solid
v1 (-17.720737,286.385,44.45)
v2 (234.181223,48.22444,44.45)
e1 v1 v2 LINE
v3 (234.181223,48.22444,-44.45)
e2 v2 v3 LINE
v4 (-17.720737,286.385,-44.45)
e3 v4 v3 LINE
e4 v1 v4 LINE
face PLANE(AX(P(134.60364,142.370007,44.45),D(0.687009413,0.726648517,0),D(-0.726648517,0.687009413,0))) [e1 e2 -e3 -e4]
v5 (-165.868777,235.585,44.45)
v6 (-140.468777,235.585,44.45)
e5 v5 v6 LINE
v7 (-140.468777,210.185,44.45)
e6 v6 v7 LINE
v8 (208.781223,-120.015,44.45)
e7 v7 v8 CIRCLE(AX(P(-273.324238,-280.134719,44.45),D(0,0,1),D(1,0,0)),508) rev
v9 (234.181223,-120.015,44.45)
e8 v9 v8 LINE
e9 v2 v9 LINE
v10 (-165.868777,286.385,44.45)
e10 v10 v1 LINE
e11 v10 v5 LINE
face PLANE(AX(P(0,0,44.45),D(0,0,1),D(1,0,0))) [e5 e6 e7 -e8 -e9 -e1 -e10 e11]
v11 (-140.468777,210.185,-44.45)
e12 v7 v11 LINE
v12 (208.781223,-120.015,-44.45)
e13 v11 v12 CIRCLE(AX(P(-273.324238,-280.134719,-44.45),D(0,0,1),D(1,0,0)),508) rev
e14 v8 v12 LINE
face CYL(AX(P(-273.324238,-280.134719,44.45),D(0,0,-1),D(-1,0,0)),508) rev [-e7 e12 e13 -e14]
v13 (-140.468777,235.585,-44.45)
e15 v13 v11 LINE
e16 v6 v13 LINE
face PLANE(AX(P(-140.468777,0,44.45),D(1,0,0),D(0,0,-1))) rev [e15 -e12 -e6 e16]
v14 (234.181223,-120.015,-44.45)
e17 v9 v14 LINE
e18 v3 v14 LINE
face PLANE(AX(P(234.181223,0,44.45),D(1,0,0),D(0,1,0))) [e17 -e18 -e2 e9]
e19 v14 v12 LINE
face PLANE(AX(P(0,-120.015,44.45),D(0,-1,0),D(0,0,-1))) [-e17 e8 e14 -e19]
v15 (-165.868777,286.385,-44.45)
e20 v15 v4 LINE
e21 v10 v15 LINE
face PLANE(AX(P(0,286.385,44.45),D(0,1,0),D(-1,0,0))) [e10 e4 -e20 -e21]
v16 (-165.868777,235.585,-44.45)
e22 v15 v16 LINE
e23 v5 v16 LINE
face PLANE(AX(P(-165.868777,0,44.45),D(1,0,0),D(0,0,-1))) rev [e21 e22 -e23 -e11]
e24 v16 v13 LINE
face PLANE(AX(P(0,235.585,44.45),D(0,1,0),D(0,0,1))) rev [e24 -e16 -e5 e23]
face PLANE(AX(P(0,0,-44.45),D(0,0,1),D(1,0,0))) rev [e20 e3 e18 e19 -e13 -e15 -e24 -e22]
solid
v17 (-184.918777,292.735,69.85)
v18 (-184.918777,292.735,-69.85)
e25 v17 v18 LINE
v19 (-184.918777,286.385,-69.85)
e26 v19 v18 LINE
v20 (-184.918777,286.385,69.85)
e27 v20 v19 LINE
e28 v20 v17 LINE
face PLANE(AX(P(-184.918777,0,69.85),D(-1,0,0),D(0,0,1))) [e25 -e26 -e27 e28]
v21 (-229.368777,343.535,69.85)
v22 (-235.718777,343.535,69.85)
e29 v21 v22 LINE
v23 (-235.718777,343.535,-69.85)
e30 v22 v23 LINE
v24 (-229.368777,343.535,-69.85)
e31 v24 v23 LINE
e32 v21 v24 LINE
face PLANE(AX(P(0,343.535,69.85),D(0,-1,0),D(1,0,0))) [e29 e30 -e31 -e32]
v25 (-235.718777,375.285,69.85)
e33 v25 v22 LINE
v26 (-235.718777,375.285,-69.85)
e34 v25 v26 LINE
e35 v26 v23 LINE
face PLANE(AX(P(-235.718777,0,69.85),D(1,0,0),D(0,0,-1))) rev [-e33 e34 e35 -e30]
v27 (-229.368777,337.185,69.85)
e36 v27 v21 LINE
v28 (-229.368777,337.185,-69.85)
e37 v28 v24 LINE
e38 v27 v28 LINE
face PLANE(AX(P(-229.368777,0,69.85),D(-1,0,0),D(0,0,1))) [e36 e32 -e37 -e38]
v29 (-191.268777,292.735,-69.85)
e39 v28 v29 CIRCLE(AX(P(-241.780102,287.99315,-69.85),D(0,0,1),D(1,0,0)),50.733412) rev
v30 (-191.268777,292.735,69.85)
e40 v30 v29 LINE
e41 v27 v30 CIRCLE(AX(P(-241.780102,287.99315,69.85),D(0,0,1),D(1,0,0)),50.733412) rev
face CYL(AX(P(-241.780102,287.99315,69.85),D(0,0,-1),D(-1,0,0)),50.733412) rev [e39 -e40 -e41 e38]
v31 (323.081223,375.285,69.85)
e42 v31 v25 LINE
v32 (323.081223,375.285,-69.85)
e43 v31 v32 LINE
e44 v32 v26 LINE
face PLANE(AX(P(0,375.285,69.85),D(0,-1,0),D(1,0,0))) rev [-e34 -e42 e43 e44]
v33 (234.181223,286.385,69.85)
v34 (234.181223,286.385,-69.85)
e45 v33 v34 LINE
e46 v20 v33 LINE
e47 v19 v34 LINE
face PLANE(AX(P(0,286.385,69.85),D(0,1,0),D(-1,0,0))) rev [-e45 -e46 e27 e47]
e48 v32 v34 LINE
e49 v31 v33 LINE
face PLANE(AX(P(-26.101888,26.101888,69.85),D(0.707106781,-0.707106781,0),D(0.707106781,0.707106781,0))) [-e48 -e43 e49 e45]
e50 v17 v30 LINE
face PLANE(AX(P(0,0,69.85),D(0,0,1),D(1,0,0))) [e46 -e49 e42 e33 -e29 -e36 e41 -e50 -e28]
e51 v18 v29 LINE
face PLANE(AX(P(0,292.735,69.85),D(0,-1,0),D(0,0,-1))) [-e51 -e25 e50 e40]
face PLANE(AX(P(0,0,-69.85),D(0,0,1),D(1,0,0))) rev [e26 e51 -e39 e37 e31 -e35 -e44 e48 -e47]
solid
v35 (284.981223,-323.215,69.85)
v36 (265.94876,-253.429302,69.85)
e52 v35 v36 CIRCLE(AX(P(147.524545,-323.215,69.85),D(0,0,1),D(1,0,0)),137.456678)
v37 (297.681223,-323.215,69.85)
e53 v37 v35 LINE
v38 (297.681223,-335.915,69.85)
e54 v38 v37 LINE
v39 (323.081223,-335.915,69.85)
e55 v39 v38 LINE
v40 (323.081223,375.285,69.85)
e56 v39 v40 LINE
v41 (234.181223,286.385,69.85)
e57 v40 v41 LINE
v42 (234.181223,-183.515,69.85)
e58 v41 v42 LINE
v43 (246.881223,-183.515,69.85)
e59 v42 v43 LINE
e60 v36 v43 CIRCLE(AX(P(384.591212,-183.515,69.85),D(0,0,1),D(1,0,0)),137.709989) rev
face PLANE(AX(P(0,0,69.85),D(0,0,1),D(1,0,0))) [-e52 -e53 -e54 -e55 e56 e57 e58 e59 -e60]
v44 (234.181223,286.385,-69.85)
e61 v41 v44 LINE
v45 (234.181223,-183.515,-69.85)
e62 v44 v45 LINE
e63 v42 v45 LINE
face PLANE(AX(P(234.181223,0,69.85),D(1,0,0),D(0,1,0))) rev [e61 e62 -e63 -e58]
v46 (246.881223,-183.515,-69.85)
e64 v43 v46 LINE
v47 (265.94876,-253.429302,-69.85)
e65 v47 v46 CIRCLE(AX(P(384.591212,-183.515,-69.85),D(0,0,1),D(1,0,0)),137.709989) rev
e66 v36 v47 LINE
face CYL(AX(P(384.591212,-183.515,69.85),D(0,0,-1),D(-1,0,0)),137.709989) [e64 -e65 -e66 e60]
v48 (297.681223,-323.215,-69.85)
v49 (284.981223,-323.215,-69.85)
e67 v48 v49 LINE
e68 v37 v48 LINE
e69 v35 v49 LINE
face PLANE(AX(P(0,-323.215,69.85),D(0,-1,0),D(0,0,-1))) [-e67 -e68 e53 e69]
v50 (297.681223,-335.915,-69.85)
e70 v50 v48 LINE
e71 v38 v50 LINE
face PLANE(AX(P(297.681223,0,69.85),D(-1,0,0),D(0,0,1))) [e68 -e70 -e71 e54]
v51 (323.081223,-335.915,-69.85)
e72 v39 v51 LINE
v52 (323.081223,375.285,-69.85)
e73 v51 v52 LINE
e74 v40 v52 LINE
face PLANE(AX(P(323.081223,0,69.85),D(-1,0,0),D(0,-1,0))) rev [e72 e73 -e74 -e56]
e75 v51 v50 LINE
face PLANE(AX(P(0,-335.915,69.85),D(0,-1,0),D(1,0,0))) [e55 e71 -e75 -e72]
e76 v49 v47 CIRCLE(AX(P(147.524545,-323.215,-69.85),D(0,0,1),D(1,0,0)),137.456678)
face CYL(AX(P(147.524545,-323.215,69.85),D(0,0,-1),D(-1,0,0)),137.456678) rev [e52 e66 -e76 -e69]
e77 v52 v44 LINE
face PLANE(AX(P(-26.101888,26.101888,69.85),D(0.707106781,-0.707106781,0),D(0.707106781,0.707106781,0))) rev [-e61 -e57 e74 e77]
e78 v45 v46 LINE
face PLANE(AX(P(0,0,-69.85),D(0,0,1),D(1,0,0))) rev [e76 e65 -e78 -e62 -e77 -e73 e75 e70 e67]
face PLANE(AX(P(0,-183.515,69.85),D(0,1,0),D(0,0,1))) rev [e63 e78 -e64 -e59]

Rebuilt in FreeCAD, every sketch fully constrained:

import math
import FreeCAD as App
import Part
import Sketcher

V = App.Vector
Q = App.Units.Quantity

doc = App.newDocument("Part")
body = doc.addObject("PartDesign::Body", "Body")

# Sketch on XY plane
sketch1 = body.newObject("Sketcher::SketchObject", "Sketch")
sketch1.AttachmentSupport = (doc.getObject("XY_Plane"), [""])
sketch1.MapMode = "FlatFace"
sketch1.addGeometry([
    Part.LineSegment(V(-229, 344, 0), V(-229, 337, 0)),  # 0
    Part.ArcOfCircle(Part.Circle(V(-242, 288, 0), V(0, 0, 1), 51), math.radians(5), math.radians(76)),  # 1
    Part.LineSegment(V(-191, 293, 0), V(-185, 293, 0)),  # 2
    Part.LineSegment(V(-185, 293, 0), V(-185, 286, 0)),  # 3
    Part.LineSegment(V(-185, 286, 0), V(234, 286, 0)),  # 4
    Part.LineSegment(V(234, 286, 0), V(323, 375, 0)),  # 5
    Part.LineSegment(V(323, 375, 0), V(-236, 375, 0)),  # 6
    Part.LineSegment(V(-236, 375, 0), V(-236, 344, 0)),  # 7
    Part.LineSegment(V(-236, 344, 0), V(-229, 344, 0)),  # 8
], False)
sketch1.addConstraint([
    Sketcher.Constraint("Coincident", 0, 2, 1, 2),
    Sketcher.Constraint("Coincident", 1, 1, 2, 1),
    Sketcher.Constraint("Coincident", 2, 2, 3, 1),
    Sketcher.Constraint("Coincident", 3, 2, 4, 1),
    Sketcher.Constraint("Coincident", 4, 2, 5, 1),
    Sketcher.Constraint("Coincident", 5, 2, 6, 1),
    Sketcher.Constraint("Coincident", 6, 2, 7, 1),
    Sketcher.Constraint("Coincident", 7, 2, 8, 1),
    Sketcher.Constraint("Coincident", 8, 2, 0, 1),
    Sketcher.Constraint("Vertical", 0),
    Sketcher.Constraint("Horizontal", 2),
    Sketcher.Constraint("Vertical", 3),
    Sketcher.Constraint("Horizontal", 4),
    Sketcher.Constraint("Horizontal", 6),
    Sketcher.Constraint("Vertical", 7),
    Sketcher.Constraint("Horizontal", 8),
    Sketcher.Constraint("Equal", 2, 8),
    Sketcher.Constraint("Equal", 8, 0),
    Sketcher.Constraint("Equal", 0, 3),
    Sketcher.Constraint("DistanceX", 6, 2, 6, 1, Q("22 in")),
    Sketcher.Constraint("DistanceX", 4, 1, 4, 2, Q("16.5 in")),
    Sketcher.Constraint("Angle", 5, Q("45 deg")),
    Sketcher.Constraint("DistanceY", 3, 2, 0, 2, Q("2 in")),
    Sketcher.Constraint("DistanceX", 2, 2, 5, 2, Q("20 in")),
    Sketcher.Constraint("DistanceX", 2, 1, 2, 2, Q("0.25 in")),
    Sketcher.Constraint("DistanceY", -1, 1, 0, 2, Q("13.275 in")),
    Sketcher.Constraint("Radius", 1, 50.733412),
    Sketcher.Constraint("DistanceX", 1, 3, -1, 1, 241.780102),
])
pad1 = body.newObject("PartDesign::Pad", "Pad")
pad1.Profile = sketch1
pad1.Length = Q("5.5 in")
pad1.Midplane = True
body2 = doc.addObject("PartDesign::Body", "Body001")

# Sketch on XY plane
sketch2 = body2.newObject("Sketcher::SketchObject", "Sketch001")
sketch2.AttachmentSupport = (doc.getObject("XY_Plane001"), [""])
sketch2.MapMode = "FlatFace"
sketch2.addGeometry([
    Part.LineSegment(V(234, 48, 0), V(-18, 286, 0)),  # 0
    Part.LineSegment(V(-18, 286, 0), V(-166, 286, 0)),  # 1
    Part.LineSegment(V(-166, 286, 0), V(-166, 236, 0)),  # 2
    Part.LineSegment(V(-166, 236, 0), V(-140, 236, 0)),  # 3
    Part.LineSegment(V(-140, 236, 0), V(-140, 210, 0)),  # 4
    Part.ArcOfCircle(Part.Circle(V(-273, -280, 0), V(0, 0, 1), 508), math.radians(18), math.radians(75)),  # 5
    Part.LineSegment(V(209, -120, 0), V(234, -120, 0)),  # 6
    Part.LineSegment(V(234, -120, 0), V(234, 48, 0)),  # 7
], False)
sketch2.addConstraint([
    Sketcher.Constraint("Coincident", 0, 2, 1, 1),
    Sketcher.Constraint("Coincident", 1, 2, 2, 1),
    Sketcher.Constraint("Coincident", 2, 2, 3, 1),
    Sketcher.Constraint("Coincident", 3, 2, 4, 1),
    Sketcher.Constraint("Coincident", 4, 2, 5, 2),
    Sketcher.Constraint("Coincident", 5, 1, 6, 1),
    Sketcher.Constraint("Coincident", 6, 2, 7, 1),
    Sketcher.Constraint("Coincident", 7, 2, 0, 1),
    Sketcher.Constraint("Horizontal", 1),
    Sketcher.Constraint("Vertical", 2),
    Sketcher.Constraint("Horizontal", 3),
    Sketcher.Constraint("Vertical", 4),
    Sketcher.Constraint("Horizontal", 6),
    Sketcher.Constraint("Vertical", 7),
    Sketcher.Constraint("Equal", 3, 6),
    Sketcher.Constraint("Equal", 6, 4),
    Sketcher.Constraint("Radius", 5, Q("20 in")),
    Sketcher.Constraint("DistanceX", 3, 1, 3, 2, Q("1 in")),
    Sketcher.Constraint("DistanceY", 2, 2, 2, 1, Q("2 in")),
    Sketcher.Constraint("DistanceY", 6, 2, 0, 2, Q("16 in")),
    Sketcher.Constraint("DistanceX", 4, 2, 5, 1, Q("13.75 in")),
    Sketcher.Constraint("DistanceX", 1, 2, 1, 1, Q("5.8326 in")),
    Sketcher.Constraint("DistanceY", 7, 1, 7, 2, Q("6.6236 in")),
    Sketcher.Constraint("DistanceY", -1, 1, 0, 2, Q("11.275 in")),
    Sketcher.Constraint("DistanceX", 5, 3, -1, 1, 273.324238),
])
pad2 = body2.newObject("PartDesign::Pad", "Pad001")
pad2.Profile = sketch2
pad2.Length = Q("3.5 in")
pad2.Midplane = True
body3 = doc.addObject("PartDesign::Body", "Body002")

# Sketch on XY plane
sketch3 = body3.newObject("Sketcher::SketchObject", "Sketch002")
sketch3.AttachmentSupport = (doc.getObject("XY_Plane002"), [""])
sketch3.MapMode = "FlatFace"
sketch3.addGeometry([
    Part.ArcOfCircle(Part.Circle(V(385, -184, 0), V(0, 0, 1), 138), math.radians(180), math.radians(211)),  # 0
    Part.ArcOfCircle(Part.Circle(V(148, -323, 0), V(0, 0, 1), 137), math.radians(0), math.radians(31)),  # 1
    Part.LineSegment(V(285, -323, 0), V(298, -323, 0)),  # 2
    Part.LineSegment(V(298, -323, 0), V(298, -336, 0)),  # 3
    Part.LineSegment(V(298, -336, 0), V(323, -336, 0)),  # 4
    Part.LineSegment(V(323, -336, 0), V(323, 375, 0)),  # 5
    Part.LineSegment(V(323, 375, 0), V(234, 286, 0)),  # 6
    Part.LineSegment(V(234, 286, 0), V(234, -184, 0)),  # 7
    Part.LineSegment(V(234, -184, 0), V(247, -184, 0)),  # 8
], False)
sketch3.addConstraint([
    Sketcher.Constraint("Tangent", 0, 2, 1, 2),
    Sketcher.Constraint("Coincident", 1, 1, 2, 1),
    Sketcher.Constraint("Coincident", 2, 2, 3, 1),
    Sketcher.Constraint("Coincident", 3, 2, 4, 1),
    Sketcher.Constraint("Coincident", 4, 2, 5, 1),
    Sketcher.Constraint("Coincident", 5, 2, 6, 1),
    Sketcher.Constraint("Coincident", 6, 2, 7, 1),
    Sketcher.Constraint("Coincident", 7, 2, 8, 1),
    Sketcher.Constraint("Coincident", 8, 2, 0, 1),
    Sketcher.Constraint("Horizontal", 2),
    Sketcher.Constraint("Vertical", 3),
    Sketcher.Constraint("Horizontal", 4),
    Sketcher.Constraint("Vertical", 5),
    Sketcher.Constraint("Vertical", 7),
    Sketcher.Constraint("Horizontal", 8),
    Sketcher.Constraint("Horizontal", 0, 3, 7, 2),
    Sketcher.Constraint("Equal", 2, 8),
    Sketcher.Constraint("Equal", 8, 3),
    Sketcher.Constraint("DistanceX", 4, 1, 4, 2, Q("1 in")),
    Sketcher.Constraint("DistanceY", 5, 1, 5, 2, Q("28 in")),
    Sketcher.Constraint("DistanceX", 2, 1, 2, 2, Q("0.5 in")),
    Sketcher.Constraint("DistanceY", 7, 2, 7, 1, Q("18.5 in")),
    Sketcher.Constraint("Angle", 6, Q("-135 deg")),
    Sketcher.Constraint("DistanceY", 3, 2, 0, 3, Q("6 in")),
    Sketcher.Constraint("DistanceY", 1, 3, 0, 3, Q("5.5 in")),
    Sketcher.Constraint("DistanceY", 0, 3, -1, 1, Q("7.225 in")),
    Sketcher.Constraint("Radius", 0, 137.709989),
    Sketcher.Constraint("DistanceX", -1, 1, 0, 3, 384.591212),
])
pad3 = body3.newObject("PartDesign::Pad", "Pad002")
pad3.Profile = sketch3
pad3.Length = Q("5.5 in")
pad3.Midplane = True

doc.recompute()
